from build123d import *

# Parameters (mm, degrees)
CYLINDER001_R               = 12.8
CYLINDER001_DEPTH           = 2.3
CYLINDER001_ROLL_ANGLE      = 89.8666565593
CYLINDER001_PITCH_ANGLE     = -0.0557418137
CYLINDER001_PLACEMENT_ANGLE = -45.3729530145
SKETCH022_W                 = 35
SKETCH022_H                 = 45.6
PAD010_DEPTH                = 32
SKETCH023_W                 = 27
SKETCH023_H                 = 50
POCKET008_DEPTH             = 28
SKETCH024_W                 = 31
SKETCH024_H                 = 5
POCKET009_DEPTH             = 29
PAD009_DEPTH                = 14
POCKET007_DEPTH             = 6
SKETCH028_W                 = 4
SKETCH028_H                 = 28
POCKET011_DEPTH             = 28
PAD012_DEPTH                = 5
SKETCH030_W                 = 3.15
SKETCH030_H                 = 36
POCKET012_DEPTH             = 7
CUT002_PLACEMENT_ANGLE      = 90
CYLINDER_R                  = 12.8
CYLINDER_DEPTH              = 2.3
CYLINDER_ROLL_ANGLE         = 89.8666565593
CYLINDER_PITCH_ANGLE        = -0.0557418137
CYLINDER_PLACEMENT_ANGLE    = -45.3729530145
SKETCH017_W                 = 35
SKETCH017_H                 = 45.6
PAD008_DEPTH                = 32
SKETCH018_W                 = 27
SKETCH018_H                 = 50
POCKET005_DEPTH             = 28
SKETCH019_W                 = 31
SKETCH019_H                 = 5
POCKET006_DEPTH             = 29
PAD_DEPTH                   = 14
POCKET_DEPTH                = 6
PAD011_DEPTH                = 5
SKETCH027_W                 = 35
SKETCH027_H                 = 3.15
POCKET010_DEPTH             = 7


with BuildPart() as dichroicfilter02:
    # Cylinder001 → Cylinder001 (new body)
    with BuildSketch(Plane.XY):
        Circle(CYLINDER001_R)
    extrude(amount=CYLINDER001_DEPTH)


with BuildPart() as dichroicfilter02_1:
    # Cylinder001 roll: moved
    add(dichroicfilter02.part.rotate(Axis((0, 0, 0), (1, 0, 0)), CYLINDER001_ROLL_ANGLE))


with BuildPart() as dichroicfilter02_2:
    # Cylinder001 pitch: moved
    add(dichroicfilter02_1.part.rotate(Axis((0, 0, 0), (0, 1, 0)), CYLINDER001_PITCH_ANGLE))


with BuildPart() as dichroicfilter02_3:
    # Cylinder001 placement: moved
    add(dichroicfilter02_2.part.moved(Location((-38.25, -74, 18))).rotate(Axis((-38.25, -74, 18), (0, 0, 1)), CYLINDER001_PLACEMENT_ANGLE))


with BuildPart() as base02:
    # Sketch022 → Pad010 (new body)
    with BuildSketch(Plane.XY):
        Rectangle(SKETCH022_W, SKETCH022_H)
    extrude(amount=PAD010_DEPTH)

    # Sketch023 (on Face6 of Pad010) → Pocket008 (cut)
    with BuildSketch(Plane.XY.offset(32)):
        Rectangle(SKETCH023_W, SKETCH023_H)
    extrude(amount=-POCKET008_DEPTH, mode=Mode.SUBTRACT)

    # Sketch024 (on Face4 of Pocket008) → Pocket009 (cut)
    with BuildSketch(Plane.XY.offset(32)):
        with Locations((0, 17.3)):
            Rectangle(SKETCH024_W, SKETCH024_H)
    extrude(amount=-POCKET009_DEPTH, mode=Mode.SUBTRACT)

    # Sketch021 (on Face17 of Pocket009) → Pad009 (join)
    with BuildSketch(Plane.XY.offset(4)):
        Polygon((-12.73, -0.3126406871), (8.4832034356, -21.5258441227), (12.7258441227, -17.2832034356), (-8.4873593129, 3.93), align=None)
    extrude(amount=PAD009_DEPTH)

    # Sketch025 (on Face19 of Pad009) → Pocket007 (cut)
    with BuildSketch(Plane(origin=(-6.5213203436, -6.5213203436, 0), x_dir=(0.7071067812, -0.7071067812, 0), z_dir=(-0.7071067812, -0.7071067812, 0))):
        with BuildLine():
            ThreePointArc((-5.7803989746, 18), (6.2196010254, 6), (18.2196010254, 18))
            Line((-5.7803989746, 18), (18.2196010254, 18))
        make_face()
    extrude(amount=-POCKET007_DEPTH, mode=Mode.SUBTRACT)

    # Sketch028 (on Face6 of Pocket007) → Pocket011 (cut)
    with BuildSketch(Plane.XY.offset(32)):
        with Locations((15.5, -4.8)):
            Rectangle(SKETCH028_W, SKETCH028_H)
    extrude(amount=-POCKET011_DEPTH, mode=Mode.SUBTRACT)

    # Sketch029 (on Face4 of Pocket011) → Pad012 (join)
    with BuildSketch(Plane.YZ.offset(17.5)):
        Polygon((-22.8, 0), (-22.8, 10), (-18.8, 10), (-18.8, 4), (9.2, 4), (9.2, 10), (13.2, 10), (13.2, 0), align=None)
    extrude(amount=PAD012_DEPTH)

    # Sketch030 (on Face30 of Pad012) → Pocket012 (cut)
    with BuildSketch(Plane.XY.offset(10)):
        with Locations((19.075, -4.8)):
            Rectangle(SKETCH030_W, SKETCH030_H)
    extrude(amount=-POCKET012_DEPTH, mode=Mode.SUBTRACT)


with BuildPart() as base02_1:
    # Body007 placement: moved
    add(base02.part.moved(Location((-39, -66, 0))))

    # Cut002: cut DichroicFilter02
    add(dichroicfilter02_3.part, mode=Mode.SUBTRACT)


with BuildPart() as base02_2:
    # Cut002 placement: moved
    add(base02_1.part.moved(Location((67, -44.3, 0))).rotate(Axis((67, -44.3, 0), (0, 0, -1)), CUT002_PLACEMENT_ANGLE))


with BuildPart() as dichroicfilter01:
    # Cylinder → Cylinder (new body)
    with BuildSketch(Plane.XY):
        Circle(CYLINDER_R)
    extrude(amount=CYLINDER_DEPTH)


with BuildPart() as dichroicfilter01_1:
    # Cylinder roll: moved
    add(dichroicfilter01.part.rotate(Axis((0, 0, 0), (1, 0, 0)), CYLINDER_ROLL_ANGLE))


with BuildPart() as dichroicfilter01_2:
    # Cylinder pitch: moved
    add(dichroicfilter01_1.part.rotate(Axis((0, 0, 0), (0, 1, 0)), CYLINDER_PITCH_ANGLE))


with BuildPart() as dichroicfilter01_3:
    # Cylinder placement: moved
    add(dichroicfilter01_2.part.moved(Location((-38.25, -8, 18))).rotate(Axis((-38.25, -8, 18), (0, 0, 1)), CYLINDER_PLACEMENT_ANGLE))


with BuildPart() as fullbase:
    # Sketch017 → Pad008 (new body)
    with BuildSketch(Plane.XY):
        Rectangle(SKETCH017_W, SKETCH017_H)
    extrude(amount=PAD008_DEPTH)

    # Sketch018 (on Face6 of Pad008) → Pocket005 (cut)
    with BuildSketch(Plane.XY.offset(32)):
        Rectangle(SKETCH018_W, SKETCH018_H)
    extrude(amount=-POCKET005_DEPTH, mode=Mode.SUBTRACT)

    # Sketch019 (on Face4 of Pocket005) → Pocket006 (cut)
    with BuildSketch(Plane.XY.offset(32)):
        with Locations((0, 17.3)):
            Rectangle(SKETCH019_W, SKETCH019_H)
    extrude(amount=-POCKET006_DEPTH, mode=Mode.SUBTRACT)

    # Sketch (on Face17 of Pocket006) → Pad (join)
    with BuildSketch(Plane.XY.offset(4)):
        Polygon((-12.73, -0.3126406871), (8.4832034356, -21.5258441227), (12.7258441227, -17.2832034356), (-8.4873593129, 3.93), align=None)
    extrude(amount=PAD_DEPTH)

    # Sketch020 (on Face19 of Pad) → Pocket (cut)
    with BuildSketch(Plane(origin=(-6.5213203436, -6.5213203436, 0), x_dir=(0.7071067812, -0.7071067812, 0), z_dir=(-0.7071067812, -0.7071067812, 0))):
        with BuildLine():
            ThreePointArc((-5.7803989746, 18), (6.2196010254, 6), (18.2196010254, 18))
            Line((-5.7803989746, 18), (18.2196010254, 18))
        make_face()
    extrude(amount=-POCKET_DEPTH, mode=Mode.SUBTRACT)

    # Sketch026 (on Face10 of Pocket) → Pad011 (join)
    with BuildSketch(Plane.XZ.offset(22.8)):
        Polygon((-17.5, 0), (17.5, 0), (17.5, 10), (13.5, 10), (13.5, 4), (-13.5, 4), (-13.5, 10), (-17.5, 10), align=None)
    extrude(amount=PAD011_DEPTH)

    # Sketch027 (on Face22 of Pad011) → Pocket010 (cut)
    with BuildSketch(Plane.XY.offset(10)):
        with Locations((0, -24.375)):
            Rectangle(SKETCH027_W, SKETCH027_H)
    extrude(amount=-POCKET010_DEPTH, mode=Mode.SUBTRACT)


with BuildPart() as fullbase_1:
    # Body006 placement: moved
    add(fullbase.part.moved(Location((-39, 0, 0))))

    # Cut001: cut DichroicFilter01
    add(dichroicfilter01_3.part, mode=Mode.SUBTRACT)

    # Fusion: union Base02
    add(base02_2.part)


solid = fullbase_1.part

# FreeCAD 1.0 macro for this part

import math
import FreeCAD as App
import Part
import Sketcher

V = App.Vector
Q = App.Units.Quantity

doc = App.newDocument("Part")
body = doc.addObject("PartDesign::Body", "Body")

# Sketch on XY plane
sketch1 = body.newObject("Sketcher::SketchObject", "Sketch")
sketch1.AttachmentSupport = (doc.getObject("XY_Plane"), [""])
sketch1.MapMode = "FlatFace"
sketch1.addGeometry(Part.Circle(V(0, 0, 0), V(0, 0, 1), 13), False)
sketch1.addConstraint(Sketcher.Constraint("Coincident", 0, 3, -1, 1))
sketch1.addConstraint(Sketcher.Constraint("Diameter", 0, Q("25.6 mm")))
pad1 = body.newObject("PartDesign::Pad", "Pad")
pad1.Profile = sketch1
pad1.Length = 2.3
body2 = doc.addObject("PartDesign::Body", "Body001")
doc.recompute()

body.Placement = App.Placement(V(0, 0, 0), App.Rotation(V(1, 0, 0), 89.866657))
boolean = body2.newObject("PartDesign::Boolean", "Boolean")
boolean.Type = "Fuse"
boolean.addObjects([body])
body3 = doc.addObject("PartDesign::Body", "Body002")
doc.recompute()

body2.Placement = App.Placement(V(0, 0, 0), App.Rotation(V(0, 1, 0), 359.944258))
boolean2 = body3.newObject("PartDesign::Boolean", "Boolean001")
boolean2.Type = "Fuse"
boolean2.addObjects([body2])
body4 = doc.addObject("PartDesign::Body", "Body003")
doc.recompute()

body3.Placement = App.Placement(V(-38.25, -74, 18), App.Rotation(V(0, 0, 1), 314.627047))
boolean3 = body4.newObject("PartDesign::Boolean", "Boolean002")
boolean3.Type = "Fuse"
boolean3.addObjects([body3])
body5 = doc.addObject("PartDesign::Body", "Body004")

# Sketch on XY plane
sketch2 = body5.newObject("Sketcher::SketchObject", "Sketch001")
sketch2.AttachmentSupport = (doc.getObject("XY_Plane004"), [""])
sketch2.MapMode = "FlatFace"
sketch2.addGeometry(Part.LineSegment(V(-18, 23, 0), V(-18, -23, 0)), False)
sketch2.addGeometry(Part.LineSegment(V(-18, -23, 0), V(18, -23, 0)), False)
sketch2.addGeometry(Part.LineSegment(V(18, -23, 0), V(18, 23, 0)), False)
sketch2.addGeometry(Part.LineSegment(V(18, 23, 0), V(-18, 23, 0)), False)
sketch2.addConstraint(Sketcher.Constraint("Coincident", 0, 2, 1, 1))
sketch2.addConstraint(Sketcher.Constraint("Coincident", 1, 2, 2, 1))
sketch2.addConstraint(Sketcher.Constraint("Coincident", 2, 2, 3, 1))
sketch2.addConstraint(Sketcher.Constraint("Coincident", 3, 2, 0, 1))
sketch2.addConstraint(Sketcher.Constraint("Vertical", 0))
sketch2.addConstraint(Sketcher.Constraint("Horizontal", 1))
sketch2.addConstraint(Sketcher.Constraint("Vertical", 2))
sketch2.addConstraint(Sketcher.Constraint("Horizontal", 3))
sketch2.addConstraint(Sketcher.Constraint("Symmetric", 0, 2, 2, 2, -1, 1))
sketch2.addConstraint(Sketcher.Constraint("DistanceX", 1, 1, 1, 2, Q("35 mm")))
sketch2.addConstraint(Sketcher.Constraint("DistanceY", 0, 2, 0, 1, Q("45.6 mm")))
pad2 = body5.newObject("PartDesign::Pad", "Pad001")
pad2.Profile = sketch2
pad2.Length = 32

# Sketch on XY plane
sketch3 = body5.newObject("Sketcher::SketchObject", "Sketch002")
sketch3.AttachmentSupport = (doc.getObject("XY_Plane004"), [""])
sketch3.MapMode = "FlatFace"
sketch3.AttachmentOffset = App.Placement(V(0, 0, 32), App.Rotation())
sketch3.addGeometry(Part.LineSegment(V(-14, 25, 0), V(-14, -25, 0)), False)
sketch3.addGeometry(Part.LineSegment(V(-14, -25, 0), V(14, -25, 0)), False)
sketch3.addGeometry(Part.LineSegment(V(14, -25, 0), V(14, 25, 0)), False)
sketch3.addGeometry(Part.LineSegment(V(14, 25, 0), V(-14, 25, 0)), False)
sketch3.addConstraint(Sketcher.Constraint("Coincident", 0, 2, 1, 1))
sketch3.addConstraint(Sketcher.Constraint("Coincident", 1, 2, 2, 1))
sketch3.addConstraint(Sketcher.Constraint("Coincident", 2, 2, 3, 1))
sketch3.addConstraint(Sketcher.Constraint("Coincident", 3, 2, 0, 1))
sketch3.addConstraint(Sketcher.Constraint("Vertical", 0))
sketch3.addConstraint(Sketcher.Constraint("Horizontal", 1))
sketch3.addConstraint(Sketcher.Constraint("Vertical", 2))
sketch3.addConstraint(Sketcher.Constraint("Horizontal", 3))
sketch3.addConstraint(Sketcher.Constraint("Symmetric", 0, 2, 2, 2, -1, 1))
sketch3.addConstraint(Sketcher.Constraint("DistanceX", 1, 1, 1, 2, Q("27 mm")))
sketch3.addConstraint(Sketcher.Constraint("DistanceY", 0, 2, 0, 1, Q("50 mm")))
pocket1 = body5.newObject("PartDesign::Pocket", "Pocket")
pocket1.Profile = sketch3
pocket1.Length = 28

# Sketch on XY plane
sketch4 = body5.newObject("Sketcher::SketchObject", "Sketch003")
sketch4.AttachmentSupport = (doc.getObject("XY_Plane004"), [""])
sketch4.MapMode = "FlatFace"
sketch4.AttachmentOffset = App.Placement(V(0, 0, 32), App.Rotation())
sketch4.addGeometry(Part.LineSegment(V(-16, 20, 0), V(-16, 15, 0)), False)
sketch4.addGeometry(Part.LineSegment(V(-16, 15, 0), V(16, 15, 0)), False)
sketch4.addGeometry(Part.LineSegment(V(16, 15, 0), V(16, 20, 0)), False)
sketch4.addGeometry(Part.LineSegment(V(16, 20, 0), V(-16, 20, 0)), False)
sketch4.addConstraint(Sketcher.Constraint("Coincident", 0, 2, 1, 1))
sketch4.addConstraint(Sketcher.Constraint("Coincident", 1, 2, 2, 1))
sketch4.addConstraint(Sketcher.Constraint("Coincident", 2, 2, 3, 1))
sketch4.addConstraint(Sketcher.Constraint("Coincident", 3, 2, 0, 1))
sketch4.addConstraint(Sketcher.Constraint("Vertical", 0))
sketch4.addConstraint(Sketcher.Constraint("Horizontal", 1))
sketch4.addConstraint(Sketcher.Constraint("Vertical", 2))
sketch4.addConstraint(Sketcher.Constraint("Horizontal", 3))
sketch4.addConstraint(Sketcher.Constraint("DistanceX", 1, 1, 1, 2, Q("31 mm")))
sketch4.addConstraint(Sketcher.Constraint("DistanceY", 0, 2, 0, 1, Q("5 mm")))
sketch4.addConstraint(Sketcher.Constraint("DistanceX", 0, 2, -1, 1, Q("15.5 mm")))
sketch4.addConstraint(Sketcher.Constraint("DistanceY", -1, 1, 0, 2, Q("14.8 mm")))
pocket2 = body5.newObject("PartDesign::Pocket", "Pocket001")
pocket2.Profile = sketch4
pocket2.Length = 29

# Sketch on XY plane
sketch5 = body5.newObject("Sketcher::SketchObject", "Sketch004")
sketch5.AttachmentSupport = (doc.getObject("XY_Plane004"), [""])
sketch5.MapMode = "FlatFace"
sketch5.AttachmentOffset = App.Placement(V(0, 0, 4), App.Rotation())
sketch5.addGeometry(Part.LineSegment(V(-13, 0, 0), V(8, -22, 0)), False)
sketch5.addGeometry(Part.LineSegment(V(8, -22, 0), V(13, -17, 0)), False)
sketch5.addGeometry(Part.LineSegment(V(13, -17, 0), V(-8, 4, 0)), False)
sketch5.addGeometry(Part.LineSegment(V(-8, 4, 0), V(-13, 0, 0)), False)
sketch5.addConstraint(Sketcher.Constraint("Coincident", 0, 2, 1, 1))
sketch5.addConstraint(Sketcher.Constraint("Coincident", 1, 2, 2, 1))
sketch5.addConstraint(Sketcher.Constraint("Coincident", 2, 2, 3, 1))
sketch5.addConstraint(Sketcher.Constraint("Coincident", 3, 2, 0, 1))
sketch5.addConstraint(Sketcher.Constraint("Perpendicular", 0, 1))
sketch5.addConstraint(Sketcher.Constraint("Perpendicular", 1, 2))
sketch5.addConstraint(Sketcher.Constraint("Perpendicular", 2, 3))
sketch5.addConstraint(Sketcher.Constraint("Angle", 0, Q("-45 deg")))
sketch5.addConstraint(Sketcher.Constraint("Distance", 0, Q("30 mm")))
sketch5.addConstraint(Sketcher.Constraint("Distance", 1, Q("6 mm")))
sketch5.addConstraint(Sketcher.Constraint("DistanceY", -1, 1, 2, 2, Q("3.93 mm")))
sketch5.addConstraint(Sketcher.Constraint("DistanceX", 3, 2, -1, 1, Q("12.73 mm")))
pad3 = body5.newObject("PartDesign::Pad", "Pad002")
pad3.Profile = sketch5
pad3.Length = 14

# Sketch on an angled plane
sketch6 = body5.newObject("Sketcher::SketchObject", "Sketch005")
sketch6.Placement = App.Placement(V(-6.52132, -6.52132, 0), App.Rotation(V(0.707106781, -0.707106781, 0), V(0, 0, 0.999999999), V(-0.707106781, -0.707106781, 0), "ZXY"))
sketch6.addGeometry(Part.ArcOfCircle(Part.Circle(V(6, 18, 0), V(0, 0, 1), 12), math.radians(180), math.radians(360)), False)
sketch6.addGeometry(Part.LineSegment(V(18, 18, 0), V(-6, 18, 0)), False)
sketch6.addConstraint(Sketcher.Constraint("Coincident", 0, 1, 1, 2))
sketch6.addConstraint(Sketcher.Constraint("Coincident", 1, 1, 0, 2))
sketch6.addConstraint(Sketcher.Constraint("Horizontal", 1))
sketch6.addConstraint(Sketcher.Constraint("Radius", 0, Q("12 mm")))
sketch6.addConstraint(Sketcher.Constraint("DistanceY", -1, 1, 0, 3, Q("18 mm")))
sketch6.addConstraint(Sketcher.Constraint("DistanceY", -1, 1, 0, 1, Q("18 mm")))
sketch6.addConstraint(Sketcher.Constraint("DistanceX", -1, 1, 0, 3, Q("6.219601 mm")))
pocket3 = body5.newObject("PartDesign::Pocket", "Pocket002")
pocket3.Profile = sketch6
pocket3.Length = 6

# Sketch on XY plane
sketch7 = body5.newObject("Sketcher::SketchObject", "Sketch006")
sketch7.AttachmentSupport = (doc.getObject("XY_Plane004"), [""])
sketch7.MapMode = "FlatFace"
sketch7.AttachmentOffset = App.Placement(V(0, 0, 32), App.Rotation())
sketch7.addGeometry(Part.LineSegment(V(13.5, 9.2, 0), V(13.5, -18.8, 0)), False)
sketch7.addGeometry(Part.LineSegment(V(13.5, -18.8, 0), V(17.5, -18.8, 0)), False)
sketch7.addGeometry(Part.LineSegment(V(17.5, -18.8, 0), V(17.5, 9.2, 0)), False)
sketch7.addGeometry(Part.LineSegment(V(17.5, 9.2, 0), V(13.5, 9.2, 0)), False)
sketch7.addConstraint(Sketcher.Constraint("Coincident", 0, 2, 1, 1))
sketch7.addConstraint(Sketcher.Constraint("Coincident", 1, 2, 2, 1))
sketch7.addConstraint(Sketcher.Constraint("Coincident", 2, 2, 3, 1))
sketch7.addConstraint(Sketcher.Constraint("Coincident", 3, 2, 0, 1))
sketch7.addConstraint(Sketcher.Constraint("Vertical", 0))
sketch7.addConstraint(Sketcher.Constraint("Horizontal", 1))
sketch7.addConstraint(Sketcher.Constraint("Vertical", 2))
sketch7.addConstraint(Sketcher.Constraint("Horizontal", 3))
sketch7.addConstraint(Sketcher.Constraint("DistanceX", 1, 1, 1, 2, Q("4 mm")))
sketch7.addConstraint(Sketcher.Constraint("DistanceY", 0, 2, 0, 1, Q("28 mm")))
sketch7.addConstraint(Sketcher.Constraint("DistanceX", -1, 1, 0, 2, Q("13.5 mm")))
sketch7.addConstraint(Sketcher.Constraint("DistanceY", 0, 2, -1, 1, Q("18.8 mm")))
pocket4 = body5.newObject("PartDesign::Pocket", "Pocket003")
pocket4.Profile = sketch7
pocket4.Length = 28

# Sketch on YZ plane
sketch8 = body5.newObject("Sketcher::SketchObject", "Sketch007")
sketch8.AttachmentSupport = (doc.getObject("YZ_Plane004"), [""])
sketch8.MapMode = "FlatFace"
sketch8.AttachmentOffset = App.Placement(V(0, 0, 17.5), App.Rotation())
sketch8.addGeometry(Part.LineSegment(V(-22.8, 10, 0), V(-22.8, 0, 0)), False)
sketch8.addGeometry(Part.LineSegment(V(-22.8, 0, 0), V(13.2, 0, 0)), False)
sketch8.addGeometry(Part.LineSegment(V(13.2, 0, 0), V(13.2, 10, 0)), False)
sketch8.addGeometry(Part.LineSegment(V(13.2, 10, 0), V(9.2, 10, 0)), False)
sketch8.addGeometry(Part.LineSegment(V(9.2, 10, 0), V(9.2, 4, 0)), False)
sketch8.addGeometry(Part.LineSegment(V(9.2, 4, 0), V(-18.8, 4, 0)), False)
sketch8.addGeometry(Part.LineSegment(V(-18.8, 4, 0), V(-18.8, 10, 0)), False)
sketch8.addGeometry(Part.LineSegment(V(-18.8, 10, 0), V(-22.8, 10, 0)), False)
sketch8.addConstraint(Sketcher.Constraint("Coincident", 0, 2, 1, 1))
sketch8.addConstraint(Sketcher.Constraint("Coincident", 1, 2, 2, 1))
sketch8.addConstraint(Sketcher.Constraint("Coincident", 2, 2, 3, 1))
sketch8.addConstraint(Sketcher.Constraint("Coincident", 3, 2, 4, 1))
sketch8.addConstraint(Sketcher.Constraint("Coincident", 4, 2, 5, 1))
sketch8.addConstraint(Sketcher.Constraint("Coincident", 5, 2, 6, 1))
sketch8.addConstraint(Sketcher.Constraint("Coincident", 6, 2, 7, 1))
sketch8.addConstraint(Sketcher.Constraint("Coincident", 7, 2, 0, 1))
sketch8.addConstraint(Sketcher.Constraint("Vertical", 0))
sketch8.addConstraint(Sketcher.Constraint("Horizontal", 1))
sketch8.addConstraint(Sketcher.Constraint("Vertical", 2))
sketch8.addConstraint(Sketcher.Constraint("Horizontal", 3))
sketch8.addConstraint(Sketcher.Constraint("Vertical", 4))
sketch8.addConstraint(Sketcher.Constraint("Horizontal", 5))
sketch8.addConstraint(Sketcher.Constraint("Vertical", 6))
sketch8.addConstraint(Sketcher.Constraint("Horizontal", 7))
sketch8.addConstraint(Sketcher.Constraint("PointOnObject", 0, 2, -1))
sketch8.addConstraint(Sketcher.Constraint("Horizontal", 3, 2, 6, 2))
sketch8.addConstraint(Sketcher.Constraint("Equal", 3, 7))
sketch8.addConstraint(Sketcher.Constraint("DistanceX", 1, 1, 1, 2, Q("36 mm")))
sketch8.addConstraint(Sketcher.Constraint("DistanceX", 3, 2, 3, 1, Q("4 mm")))
sketch8.addConstraint(Sketcher.Constraint("DistanceY", 0, 2, 0, 1, Q("10 mm")))
sketch8.addConstraint(Sketcher.Constraint("DistanceY", 4, 2, 4, 1, Q("6 mm")))
sketch8.addConstraint(Sketcher.Constraint("DistanceX", 0, 2, -1, 1, Q("22.8 mm")))
pad4 = body5.newObject("PartDesign::Pad", "Pad003")
pad4.Profile = sketch8
pad4.Length = 5

# Sketch on XY plane
sketch9 = body5.newObject("Sketcher::SketchObject", "Sketch008")
sketch9.AttachmentSupport = (doc.getObject("XY_Plane004"), [""])
sketch9.MapMode = "FlatFace"
sketch9.AttachmentOffset = App.Placement(V(0, 0, 10), App.Rotation())
sketch9.addGeometry(Part.LineSegment(V(17.5, 13.2, 0), V(17.5, -22.8, 0)), False)
sketch9.addGeometry(Part.LineSegment(V(17.5, -22.8, 0), V(20.6, -22.8, 0)), False)
sketch9.addGeometry(Part.LineSegment(V(20.6, -22.8, 0), V(20.6, 13.2, 0)), False)
sketch9.addGeometry(Part.LineSegment(V(20.6, 13.2, 0), V(17.5, 13.2, 0)), False)
sketch9.addConstraint(Sketcher.Constraint("Coincident", 0, 2, 1, 1))
sketch9.addConstraint(Sketcher.Constraint("Coincident", 1, 2, 2, 1))
sketch9.addConstraint(Sketcher.Constraint("Coincident", 2, 2, 3, 1))
sketch9.addConstraint(Sketcher.Constraint("Coincident", 3, 2, 0, 1))
sketch9.addConstraint(Sketcher.Constraint("Vertical", 0))
sketch9.addConstraint(Sketcher.Constraint("Horizontal", 1))
sketch9.addConstraint(Sketcher.Constraint("Vertical", 2))
sketch9.addConstraint(Sketcher.Constraint("Horizontal", 3))
sketch9.addConstraint(Sketcher.Constraint("DistanceY", 0, 2, 0, 1, Q("36 mm")))
sketch9.addConstraint(Sketcher.Constraint("DistanceX", 1, 1, 1, 2, Q("3.15 mm")))
sketch9.addConstraint(Sketcher.Constraint("DistanceX", -1, 1, 0, 2, Q("17.5 mm")))
sketch9.addConstraint(Sketcher.Constraint("DistanceY", 0, 2, -1, 1, Q("22.8 mm")))
pocket5 = body5.newObject("PartDesign::Pocket", "Pocket004")
pocket5.Profile = sketch9
pocket5.Length = 7
body6 = doc.addObject("PartDesign::Body", "Body005")
doc.recompute()

body5.Placement = App.Placement(V(-39, -66, 0), App.Rotation(V(0, 0, 1), 0))
boolean4 = body6.newObject("PartDesign::Boolean", "Boolean003")
boolean4.Type = "Fuse"
boolean4.addObjects([body5])
doc.recompute()

boolean5 = body6.newObject("PartDesign::Boolean", "Boolean004")
boolean5.Type = "Cut"
boolean5.addObjects([body4])
body7 = doc.addObject("PartDesign::Body", "Body006")
doc.recompute()

body6.Placement = App.Placement(V(67, -44.3, 0), App.Rotation(V(0, 0, -1), 90))
boolean6 = body7.newObject("PartDesign::Boolean", "Boolean005")
boolean6.Type = "Fuse"
boolean6.addObjects([body6])
body8 = doc.addObject("PartDesign::Body", "Body007")

# Sketch on XY plane
sketch10 = body8.newObject("Sketcher::SketchObject", "Sketch009")
sketch10.AttachmentSupport = (doc.getObject("XY_Plane007"), [""])
sketch10.MapMode = "FlatFace"
sketch10.addGeometry(Part.Circle(V(0, 0, 0), V(0, 0, 1), 13), False)
sketch10.addConstraint(Sketcher.Constraint("Coincident", 0, 3, -1, 1))
sketch10.addConstraint(Sketcher.Constraint("Diameter", 0, Q("25.6 mm")))
pad5 = body8.newObject("PartDesign::Pad", "Pad004")
pad5.Profile = sketch10
pad5.Length = 2.3
body9 = doc.addObject("PartDesign::Body", "Body008")
doc.recompute()

body8.Placement = App.Placement(V(0, 0, 0), App.Rotation(V(1, 0, 0), 89.866657))
boolean7 = body9.newObject("PartDesign::Boolean", "Boolean006")
boolean7.Type = "Fuse"
boolean7.addObjects([body8])
body10 = doc.addObject("PartDesign::Body", "Body009")
doc.recompute()

body9.Placement = App.Placement(V(0, 0, 0), App.Rotation(V(0, 1, 0), 359.944258))
boolean8 = body10.newObject("PartDesign::Boolean", "Boolean007")
boolean8.Type = "Fuse"
boolean8.addObjects([body9])
body11 = doc.addObject("PartDesign::Body", "Body010")
doc.recompute()

body10.Placement = App.Placement(V(-38.25, -8, 18), App.Rotation(V(0, 0, 1), 314.627047))
boolean9 = body11.newObject("PartDesign::Boolean", "Boolean008")
boolean9.Type = "Fuse"
boolean9.addObjects([body10])
body12 = doc.addObject("PartDesign::Body", "Body011")

# Sketch on XY plane
sketch11 = body12.newObject("Sketcher::SketchObject", "Sketch010")
sketch11.AttachmentSupport = (doc.getObject("XY_Plane011"), [""])
sketch11.MapMode = "FlatFace"
sketch11.addGeometry(Part.LineSegment(V(-18, 23, 0), V(-18, -23, 0)), False)
sketch11.addGeometry(Part.LineSegment(V(-18, -23, 0), V(18, -23, 0)), False)
sketch11.addGeometry(Part.LineSegment(V(18, -23, 0), V(18, 23, 0)), False)
sketch11.addGeometry(Part.LineSegment(V(18, 23, 0), V(-18, 23, 0)), False)
sketch11.addConstraint(Sketcher.Constraint("Coincident", 0, 2, 1, 1))
sketch11.addConstraint(Sketcher.Constraint("Coincident", 1, 2, 2, 1))
sketch11.addConstraint(Sketcher.Constraint("Coincident", 2, 2, 3, 1))
sketch11.addConstraint(Sketcher.Constraint("Coincident", 3, 2, 0, 1))
sketch11.addConstraint(Sketcher.Constraint("Vertical", 0))
sketch11.addConstraint(Sketcher.Constraint("Horizontal", 1))
sketch11.addConstraint(Sketcher.Constraint("Vertical", 2))
sketch11.addConstraint(Sketcher.Constraint("Horizontal", 3))
sketch11.addConstraint(Sketcher.Constraint("Symmetric", 0, 2, 2, 2, -1, 1))
sketch11.addConstraint(Sketcher.Constraint("DistanceX", 1, 1, 1, 2, Q("35 mm")))
sketch11.addConstraint(Sketcher.Constraint("DistanceY", 0, 2, 0, 1, Q("45.6 mm")))
pad6 = body12.newObject("PartDesign::Pad", "Pad005")
pad6.Profile = sketch11
pad6.Length = 32

# Sketch on XY plane
sketch12 = body12.newObject("Sketcher::SketchObject", "Sketch011")
sketch12.AttachmentSupport = (doc.getObject("XY_Plane011"), [""])
sketch12.MapMode = "FlatFace"
sketch12.AttachmentOffset = App.Placement(V(0, 0, 32), App.Rotation())
sketch12.addGeometry(Part.LineSegment(V(-14, 25, 0), V(-14, -25, 0)), False)
sketch12.addGeometry(Part.LineSegment(V(-14, -25, 0), V(14, -25, 0)), False)
sketch12.addGeometry(Part.LineSegment(V(14, -25, 0), V(14, 25, 0)), False)
sketch12.addGeometry(Part.LineSegment(V(14, 25, 0), V(-14, 25, 0)), False)
sketch12.addConstraint(Sketcher.Constraint("Coincident", 0, 2, 1, 1))
sketch12.addConstraint(Sketcher.Constraint("Coincident", 1, 2, 2, 1))
sketch12.addConstraint(Sketcher.Constraint("Coincident", 2, 2, 3, 1))
sketch12.addConstraint(Sketcher.Constraint("Coincident", 3, 2, 0, 1))
sketch12.addConstraint(Sketcher.Constraint("Vertical", 0))
sketch12.addConstraint(Sketcher.Constraint("Horizontal", 1))
sketch12.addConstraint(Sketcher.Constraint("Vertical", 2))
sketch12.addConstraint(Sketcher.Constraint("Horizontal", 3))
sketch12.addConstraint(Sketcher.Constraint("Symmetric", 0, 2, 2, 2, -1, 1))
sketch12.addConstraint(Sketcher.Constraint("DistanceX", 1, 1, 1, 2, Q("27 mm")))
sketch12.addConstraint(Sketcher.Constraint("DistanceY", 0, 2, 0, 1, Q("50 mm")))
pocket6 = body12.newObject("PartDesign::Pocket", "Pocket005")
pocket6.Profile = sketch12
pocket6.Length = 28

# Sketch on XY plane
sketch13 = body12.newObject("Sketcher::SketchObject", "Sketch012")
sketch13.AttachmentSupport = (doc.getObject("XY_Plane011"), [""])
sketch13.MapMode = "FlatFace"
sketch13.AttachmentOffset = App.Placement(V(0, 0, 32), App.Rotation())
sketch13.addGeometry(Part.LineSegment(V(-16, 20, 0), V(-16, 15, 0)), False)
sketch13.addGeometry(Part.LineSegment(V(-16, 15, 0), V(16, 15, 0)), False)
sketch13.addGeometry(Part.LineSegment(V(16, 15, 0), V(16, 20, 0)), False)
sketch13.addGeometry(Part.LineSegment(V(16, 20, 0), V(-16, 20, 0)), False)
sketch13.addConstraint(Sketcher.Constraint("Coincident", 0, 2, 1, 1))
sketch13.addConstraint(Sketcher.Constraint("Coincident", 1, 2, 2, 1))
sketch13.addConstraint(Sketcher.Constraint("Coincident", 2, 2, 3, 1))
sketch13.addConstraint(Sketcher.Constraint("Coincident", 3, 2, 0, 1))
sketch13.addConstraint(Sketcher.Constraint("Vertical", 0))
sketch13.addConstraint(Sketcher.Constraint("Horizontal", 1))
sketch13.addConstraint(Sketcher.Constraint("Vertical", 2))
sketch13.addConstraint(Sketcher.Constraint("Horizontal", 3))
sketch13.addConstraint(Sketcher.Constraint("DistanceX", 1, 1, 1, 2, Q("31 mm")))
sketch13.addConstraint(Sketcher.Constraint("DistanceY", 0, 2, 0, 1, Q("5 mm")))
sketch13.addConstraint(Sketcher.Constraint("DistanceX", 0, 2, -1, 1, Q("15.5 mm")))
sketch13.addConstraint(Sketcher.Constraint("DistanceY", -1, 1, 0, 2, Q("14.8 mm")))
pocket7 = body12.newObject("PartDesign::Pocket", "Pocket006")
pocket7.Profile = sketch13
pocket7.Length = 29

# Sketch on XY plane
sketch14 = body12.newObject("Sketcher::SketchObject", "Sketch013")
sketch14.AttachmentSupport = (doc.getObject("XY_Plane011"), [""])
sketch14.MapMode = "FlatFace"
sketch14.AttachmentOffset = App.Placement(V(0, 0, 4), App.Rotation())
sketch14.addGeometry(Part.LineSegment(V(-13, 0, 0), V(8, -22, 0)), False)
sketch14.addGeometry(Part.LineSegment(V(8, -22, 0), V(13, -17, 0)), False)
sketch14.addGeometry(Part.LineSegment(V(13, -17, 0), V(-8, 4, 0)), False)
sketch14.addGeometry(Part.LineSegment(V(-8, 4, 0), V(-13, 0, 0)), False)
sketch14.addConstraint(Sketcher.Constraint("Coincident", 0, 2, 1, 1))
sketch14.addConstraint(Sketcher.Constraint("Coincident", 1, 2, 2, 1))
sketch14.addConstraint(Sketcher.Constraint("Coincident", 2, 2, 3, 1))
sketch14.addConstraint(Sketcher.Constraint("Coincident", 3, 2, 0, 1))
sketch14.addConstraint(Sketcher.Constraint("Perpendicular", 0, 1))
sketch14.addConstraint(Sketcher.Constraint("Perpendicular", 1, 2))
sketch14.addConstraint(Sketcher.Constraint("Perpendicular", 2, 3))
sketch14.addConstraint(Sketcher.Constraint("Angle", 0, Q("-45 deg")))
sketch14.addConstraint(Sketcher.Constraint("Distance", 0, Q("30 mm")))
sketch14.addConstraint(Sketcher.Constraint("Distance", 1, Q("6 mm")))
sketch14.addConstraint(Sketcher.Constraint("DistanceY", -1, 1, 2, 2, Q("3.93 mm")))
sketch14.addConstraint(Sketcher.Constraint("DistanceX", 3, 2, -1, 1, Q("12.73 mm")))
pad7 = body12.newObject("PartDesign::Pad", "Pad006")
pad7.Profile = sketch14
pad7.Length = 14

# Sketch on an angled plane
sketch15 = body12.newObject("Sketcher::SketchObject", "Sketch014")
sketch15.Placement = App.Placement(V(-6.52132, -6.52132, 0), App.Rotation(V(0.707106781, -0.707106781, 0), V(0, 0, 0.999999999), V(-0.707106781, -0.707106781, 0), "ZXY"))
sketch15.addGeometry(Part.ArcOfCircle(Part.Circle(V(6, 18, 0), V(0, 0, 1), 12), math.radians(180), math.radians(360)), False)
sketch15.addGeometry(Part.LineSegment(V(18, 18, 0), V(-6, 18, 0)), False)
sketch15.addConstraint(Sketcher.Constraint("Coincident", 0, 1, 1, 2))
sketch15.addConstraint(Sketcher.Constraint("Coincident", 1, 1, 0, 2))
sketch15.addConstraint(Sketcher.Constraint("Horizontal", 1))
sketch15.addConstraint(Sketcher.Constraint("Radius", 0, Q("12 mm")))
sketch15.addConstraint(Sketcher.Constraint("DistanceY", -1, 1, 0, 3, Q("18 mm")))
sketch15.addConstraint(Sketcher.Constraint("DistanceY", -1, 1, 0, 1, Q("18 mm")))
sketch15.addConstraint(Sketcher.Constraint("DistanceX", -1, 1, 0, 3, Q("6.219601 mm")))
pocket8 = body12.newObject("PartDesign::Pocket", "Pocket007")
pocket8.Profile = sketch15
pocket8.Length = 6

# Sketch on XZ plane
sketch16 = body12.newObject("Sketcher::SketchObject", "Sketch015")
sketch16.AttachmentSupport = (doc.getObject("XZ_Plane011"), [""])
sketch16.MapMode = "FlatFace"
sketch16.AttachmentOffset = App.Placement(V(0, 0, 22.8), App.Rotation())
sketch16.addGeometry(Part.LineSegment(V(-17.5, 0, 0), V(17.5, 0, 0)), False)
sketch16.addGeometry(Part.LineSegment(V(17.5, 0, 0), V(17.5, 10, 0)), False)
sketch16.addGeometry(Part.LineSegment(V(17.5, 10, 0), V(13.5, 10, 0)), False)
sketch16.addGeometry(Part.LineSegment(V(13.5, 10, 0), V(13.5, 4, 0)), False)
sketch16.addGeometry(Part.LineSegment(V(13.5, 4, 0), V(-13.5, 4, 0)), False)
sketch16.addGeometry(Part.LineSegment(V(-13.5, 4, 0), V(-13.5, 10, 0)), False)
sketch16.addGeometry(Part.LineSegment(V(-13.5, 10, 0), V(-17.5, 10, 0)), False)
sketch16.addGeometry(Part.LineSegment(V(-17.5, 10, 0), V(-17.5, 0, 0)), False)
sketch16.addConstraint(Sketcher.Constraint("Coincident", 0, 2, 1, 1))
sketch16.addConstraint(Sketcher.Constraint("Coincident", 1, 2, 2, 1))
sketch16.addConstraint(Sketcher.Constraint("Coincident", 2, 2, 3, 1))
sketch16.addConstraint(Sketcher.Constraint("Coincident", 3, 2, 4, 1))
sketch16.addConstraint(Sketcher.Constraint("Coincident", 4, 2, 5, 1))
sketch16.addConstraint(Sketcher.Constraint("Coincident", 5, 2, 6, 1))
sketch16.addConstraint(Sketcher.Constraint("Coincident", 6, 2, 7, 1))
sketch16.addConstraint(Sketcher.Constraint("Coincident", 7, 2, 0, 1))
sketch16.addConstraint(Sketcher.Constraint("Horizontal", 0))
sketch16.addConstraint(Sketcher.Constraint("Vertical", 1))
sketch16.addConstraint(Sketcher.Constraint("Horizontal", 2))
sketch16.addConstraint(Sketcher.Constraint("Vertical", 3))
sketch16.addConstraint(Sketcher.Constraint("Horizontal", 4))
sketch16.addConstraint(Sketcher.Constraint("Vertical", 5))
sketch16.addConstraint(Sketcher.Constraint("Horizontal", 6))
sketch16.addConstraint(Sketcher.Constraint("Vertical", 7))
sketch16.addConstraint(Sketcher.Constraint("Symmetric", 0, 2, 7, 2, -1, 1))
sketch16.addConstraint(Sketcher.Constraint("Symmetric", 2, 2, 5, 2, -2))
sketch16.addConstraint(Sketcher.Constraint("DistanceX", 0, 1, 0, 2, Q("35 mm")))
sketch16.addConstraint(Sketcher.Constraint("DistanceX", 2, 2, 2, 1, Q("4 mm")))
sketch16.addConstraint(Sketcher.Constraint("DistanceY", 1, 1, 1, 2, Q("10 mm")))
sketch16.addConstraint(Sketcher.Constraint("DistanceY", 3, 2, 3, 1, Q("6 mm")))
pad8 = body12.newObject("PartDesign::Pad", "Pad007")
pad8.Profile = sketch16
pad8.Length = 5

# Sketch on XY plane
sketch17 = body12.newObject("Sketcher::SketchObject", "Sketch016")
sketch17.AttachmentSupport = (doc.getObject("XY_Plane011"), [""])
sketch17.MapMode = "FlatFace"
sketch17.AttachmentOffset = App.Placement(V(0, 0, 10), App.Rotation())
sketch17.addGeometry(Part.LineSegment(V(-17.5, -22.8, 0), V(-17.5, -25.9, 0)), False)
sketch17.addGeometry(Part.LineSegment(V(-17.5, -25.9, 0), V(17.5, -25.9, 0)), False)
sketch17.addGeometry(Part.LineSegment(V(17.5, -25.9, 0), V(17.5, -22.8, 0)), False)
sketch17.addGeometry(Part.LineSegment(V(17.5, -22.8, 0), V(-17.5, -22.8, 0)), False)
sketch17.addConstraint(Sketcher.Constraint("Coincident", 0, 2, 1, 1))
sketch17.addConstraint(Sketcher.Constraint("Coincident", 1, 2, 2, 1))
sketch17.addConstraint(Sketcher.Constraint("Coincident", 2, 2, 3, 1))
sketch17.addConstraint(Sketcher.Constraint("Coincident", 3, 2, 0, 1))
sketch17.addConstraint(Sketcher.Constraint("Vertical", 0))
sketch17.addConstraint(Sketcher.Constraint("Horizontal", 1))
sketch17.addConstraint(Sketcher.Constraint("Vertical", 2))
sketch17.addConstraint(Sketcher.Constraint("Horizontal", 3))
sketch17.addConstraint(Sketcher.Constraint("DistanceX", 1, 1, 1, 2, Q("35 mm")))
sketch17.addConstraint(Sketcher.Constraint("DistanceY", 0, 2, 0, 1, Q("3.15 mm")))
sketch17.addConstraint(Sketcher.Constraint("DistanceX", 0, 2, -1, 1, Q("17.5 mm")))
sketch17.addConstraint(Sketcher.Constraint("DistanceY", 2, 2, -1, 1, Q("22.8 mm")))
pocket9 = body12.newObject("PartDesign::Pocket", "Pocket008")
pocket9.Profile = sketch17
pocket9.Length = 7
body13 = doc.addObject("PartDesign::Body", "Body012")
doc.recompute()

body12.Placement = App.Placement(V(-39, 0, 0), App.Rotation(V(0, 0, 1), 0))
boolean10 = body13.newObject("PartDesign::Boolean", "Boolean009")
boolean10.Type = "Fuse"
boolean10.addObjects([body12])
doc.recompute()

boolean11 = body13.newObject("PartDesign::Boolean", "Boolean010")
boolean11.Type = "Cut"
boolean11.addObjects([body11])
doc.recompute()

boolean12 = body13.newObject("PartDesign::Boolean", "Boolean011")
boolean12.Type = "Fuse"
boolean12.addObjects([body7])

doc.recompute()
